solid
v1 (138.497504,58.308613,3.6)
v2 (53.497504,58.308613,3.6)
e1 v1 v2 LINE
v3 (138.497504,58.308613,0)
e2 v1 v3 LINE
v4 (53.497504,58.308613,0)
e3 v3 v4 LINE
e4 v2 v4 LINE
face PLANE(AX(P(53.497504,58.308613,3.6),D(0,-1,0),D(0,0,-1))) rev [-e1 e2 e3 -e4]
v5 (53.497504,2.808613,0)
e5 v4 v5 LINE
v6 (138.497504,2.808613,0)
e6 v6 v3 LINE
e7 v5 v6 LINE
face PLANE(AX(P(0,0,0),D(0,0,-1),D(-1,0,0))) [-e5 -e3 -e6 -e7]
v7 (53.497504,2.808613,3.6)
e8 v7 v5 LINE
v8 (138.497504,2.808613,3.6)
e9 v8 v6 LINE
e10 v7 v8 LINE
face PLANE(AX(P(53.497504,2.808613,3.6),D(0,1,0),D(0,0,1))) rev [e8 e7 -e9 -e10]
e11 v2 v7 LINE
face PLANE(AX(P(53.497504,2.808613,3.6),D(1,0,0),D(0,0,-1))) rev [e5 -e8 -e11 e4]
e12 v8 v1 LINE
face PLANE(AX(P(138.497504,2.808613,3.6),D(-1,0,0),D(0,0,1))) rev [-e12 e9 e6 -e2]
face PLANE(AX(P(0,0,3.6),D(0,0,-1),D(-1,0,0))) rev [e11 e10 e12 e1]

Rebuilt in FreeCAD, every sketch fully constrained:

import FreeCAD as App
import Part
import Sketcher

V = App.Vector
Q = App.Units.Quantity

doc = App.newDocument("Part")
body = doc.addObject("PartDesign::Body", "Body")

# Sketch on XY plane
sketch1 = body.newObject("Sketcher::SketchObject", "Sketch")
sketch1.AttachmentSupport = (doc.getObject("XY_Plane"), [""])
sketch1.MapMode = "FlatFace"
sketch1.addGeometry([
    Part.LineSegment(V(53, 58, 0), V(53, 3, 0)),
    Part.LineSegment(V(53, 3, 0), V(138, 3, 0)),
    Part.LineSegment(V(138, 3, 0), V(138, 58, 0)),
    Part.LineSegment(V(138, 58, 0), V(53, 58, 0)),
], False)
sketch1.addConstraint([
    Sketcher.Constraint("Coincident", 0, 2, 1, 1),
    Sketcher.Constraint("Coincident", 1, 2, 2, 1),
    Sketcher.Constraint("Coincident", 2, 2, 3, 1),
    Sketcher.Constraint("Coincident", 3, 2, 0, 1),
    Sketcher.Constraint("Vertical", 0),
    Sketcher.Constraint("Horizontal", 1),
    Sketcher.Constraint("Vertical", 2),
    Sketcher.Constraint("Horizontal", 3),
    Sketcher.Constraint("DistanceX", 1, 1, 1, 2, Q("85 mm")),
    Sketcher.Constraint("DistanceY", 0, 2, 0, 1, Q("55.5 mm")),
    Sketcher.Constraint("DistanceX", -1, 1, 0, 2, Q("53.497504 mm")),
    Sketcher.Constraint("DistanceY", -1, 1, 0, 2, Q("2.808613 mm")),
])
pad1 = body.newObject("PartDesign::Pad", "Pad")
pad1.Profile = sketch1
pad1.Length = 3.6

doc.recompute()
